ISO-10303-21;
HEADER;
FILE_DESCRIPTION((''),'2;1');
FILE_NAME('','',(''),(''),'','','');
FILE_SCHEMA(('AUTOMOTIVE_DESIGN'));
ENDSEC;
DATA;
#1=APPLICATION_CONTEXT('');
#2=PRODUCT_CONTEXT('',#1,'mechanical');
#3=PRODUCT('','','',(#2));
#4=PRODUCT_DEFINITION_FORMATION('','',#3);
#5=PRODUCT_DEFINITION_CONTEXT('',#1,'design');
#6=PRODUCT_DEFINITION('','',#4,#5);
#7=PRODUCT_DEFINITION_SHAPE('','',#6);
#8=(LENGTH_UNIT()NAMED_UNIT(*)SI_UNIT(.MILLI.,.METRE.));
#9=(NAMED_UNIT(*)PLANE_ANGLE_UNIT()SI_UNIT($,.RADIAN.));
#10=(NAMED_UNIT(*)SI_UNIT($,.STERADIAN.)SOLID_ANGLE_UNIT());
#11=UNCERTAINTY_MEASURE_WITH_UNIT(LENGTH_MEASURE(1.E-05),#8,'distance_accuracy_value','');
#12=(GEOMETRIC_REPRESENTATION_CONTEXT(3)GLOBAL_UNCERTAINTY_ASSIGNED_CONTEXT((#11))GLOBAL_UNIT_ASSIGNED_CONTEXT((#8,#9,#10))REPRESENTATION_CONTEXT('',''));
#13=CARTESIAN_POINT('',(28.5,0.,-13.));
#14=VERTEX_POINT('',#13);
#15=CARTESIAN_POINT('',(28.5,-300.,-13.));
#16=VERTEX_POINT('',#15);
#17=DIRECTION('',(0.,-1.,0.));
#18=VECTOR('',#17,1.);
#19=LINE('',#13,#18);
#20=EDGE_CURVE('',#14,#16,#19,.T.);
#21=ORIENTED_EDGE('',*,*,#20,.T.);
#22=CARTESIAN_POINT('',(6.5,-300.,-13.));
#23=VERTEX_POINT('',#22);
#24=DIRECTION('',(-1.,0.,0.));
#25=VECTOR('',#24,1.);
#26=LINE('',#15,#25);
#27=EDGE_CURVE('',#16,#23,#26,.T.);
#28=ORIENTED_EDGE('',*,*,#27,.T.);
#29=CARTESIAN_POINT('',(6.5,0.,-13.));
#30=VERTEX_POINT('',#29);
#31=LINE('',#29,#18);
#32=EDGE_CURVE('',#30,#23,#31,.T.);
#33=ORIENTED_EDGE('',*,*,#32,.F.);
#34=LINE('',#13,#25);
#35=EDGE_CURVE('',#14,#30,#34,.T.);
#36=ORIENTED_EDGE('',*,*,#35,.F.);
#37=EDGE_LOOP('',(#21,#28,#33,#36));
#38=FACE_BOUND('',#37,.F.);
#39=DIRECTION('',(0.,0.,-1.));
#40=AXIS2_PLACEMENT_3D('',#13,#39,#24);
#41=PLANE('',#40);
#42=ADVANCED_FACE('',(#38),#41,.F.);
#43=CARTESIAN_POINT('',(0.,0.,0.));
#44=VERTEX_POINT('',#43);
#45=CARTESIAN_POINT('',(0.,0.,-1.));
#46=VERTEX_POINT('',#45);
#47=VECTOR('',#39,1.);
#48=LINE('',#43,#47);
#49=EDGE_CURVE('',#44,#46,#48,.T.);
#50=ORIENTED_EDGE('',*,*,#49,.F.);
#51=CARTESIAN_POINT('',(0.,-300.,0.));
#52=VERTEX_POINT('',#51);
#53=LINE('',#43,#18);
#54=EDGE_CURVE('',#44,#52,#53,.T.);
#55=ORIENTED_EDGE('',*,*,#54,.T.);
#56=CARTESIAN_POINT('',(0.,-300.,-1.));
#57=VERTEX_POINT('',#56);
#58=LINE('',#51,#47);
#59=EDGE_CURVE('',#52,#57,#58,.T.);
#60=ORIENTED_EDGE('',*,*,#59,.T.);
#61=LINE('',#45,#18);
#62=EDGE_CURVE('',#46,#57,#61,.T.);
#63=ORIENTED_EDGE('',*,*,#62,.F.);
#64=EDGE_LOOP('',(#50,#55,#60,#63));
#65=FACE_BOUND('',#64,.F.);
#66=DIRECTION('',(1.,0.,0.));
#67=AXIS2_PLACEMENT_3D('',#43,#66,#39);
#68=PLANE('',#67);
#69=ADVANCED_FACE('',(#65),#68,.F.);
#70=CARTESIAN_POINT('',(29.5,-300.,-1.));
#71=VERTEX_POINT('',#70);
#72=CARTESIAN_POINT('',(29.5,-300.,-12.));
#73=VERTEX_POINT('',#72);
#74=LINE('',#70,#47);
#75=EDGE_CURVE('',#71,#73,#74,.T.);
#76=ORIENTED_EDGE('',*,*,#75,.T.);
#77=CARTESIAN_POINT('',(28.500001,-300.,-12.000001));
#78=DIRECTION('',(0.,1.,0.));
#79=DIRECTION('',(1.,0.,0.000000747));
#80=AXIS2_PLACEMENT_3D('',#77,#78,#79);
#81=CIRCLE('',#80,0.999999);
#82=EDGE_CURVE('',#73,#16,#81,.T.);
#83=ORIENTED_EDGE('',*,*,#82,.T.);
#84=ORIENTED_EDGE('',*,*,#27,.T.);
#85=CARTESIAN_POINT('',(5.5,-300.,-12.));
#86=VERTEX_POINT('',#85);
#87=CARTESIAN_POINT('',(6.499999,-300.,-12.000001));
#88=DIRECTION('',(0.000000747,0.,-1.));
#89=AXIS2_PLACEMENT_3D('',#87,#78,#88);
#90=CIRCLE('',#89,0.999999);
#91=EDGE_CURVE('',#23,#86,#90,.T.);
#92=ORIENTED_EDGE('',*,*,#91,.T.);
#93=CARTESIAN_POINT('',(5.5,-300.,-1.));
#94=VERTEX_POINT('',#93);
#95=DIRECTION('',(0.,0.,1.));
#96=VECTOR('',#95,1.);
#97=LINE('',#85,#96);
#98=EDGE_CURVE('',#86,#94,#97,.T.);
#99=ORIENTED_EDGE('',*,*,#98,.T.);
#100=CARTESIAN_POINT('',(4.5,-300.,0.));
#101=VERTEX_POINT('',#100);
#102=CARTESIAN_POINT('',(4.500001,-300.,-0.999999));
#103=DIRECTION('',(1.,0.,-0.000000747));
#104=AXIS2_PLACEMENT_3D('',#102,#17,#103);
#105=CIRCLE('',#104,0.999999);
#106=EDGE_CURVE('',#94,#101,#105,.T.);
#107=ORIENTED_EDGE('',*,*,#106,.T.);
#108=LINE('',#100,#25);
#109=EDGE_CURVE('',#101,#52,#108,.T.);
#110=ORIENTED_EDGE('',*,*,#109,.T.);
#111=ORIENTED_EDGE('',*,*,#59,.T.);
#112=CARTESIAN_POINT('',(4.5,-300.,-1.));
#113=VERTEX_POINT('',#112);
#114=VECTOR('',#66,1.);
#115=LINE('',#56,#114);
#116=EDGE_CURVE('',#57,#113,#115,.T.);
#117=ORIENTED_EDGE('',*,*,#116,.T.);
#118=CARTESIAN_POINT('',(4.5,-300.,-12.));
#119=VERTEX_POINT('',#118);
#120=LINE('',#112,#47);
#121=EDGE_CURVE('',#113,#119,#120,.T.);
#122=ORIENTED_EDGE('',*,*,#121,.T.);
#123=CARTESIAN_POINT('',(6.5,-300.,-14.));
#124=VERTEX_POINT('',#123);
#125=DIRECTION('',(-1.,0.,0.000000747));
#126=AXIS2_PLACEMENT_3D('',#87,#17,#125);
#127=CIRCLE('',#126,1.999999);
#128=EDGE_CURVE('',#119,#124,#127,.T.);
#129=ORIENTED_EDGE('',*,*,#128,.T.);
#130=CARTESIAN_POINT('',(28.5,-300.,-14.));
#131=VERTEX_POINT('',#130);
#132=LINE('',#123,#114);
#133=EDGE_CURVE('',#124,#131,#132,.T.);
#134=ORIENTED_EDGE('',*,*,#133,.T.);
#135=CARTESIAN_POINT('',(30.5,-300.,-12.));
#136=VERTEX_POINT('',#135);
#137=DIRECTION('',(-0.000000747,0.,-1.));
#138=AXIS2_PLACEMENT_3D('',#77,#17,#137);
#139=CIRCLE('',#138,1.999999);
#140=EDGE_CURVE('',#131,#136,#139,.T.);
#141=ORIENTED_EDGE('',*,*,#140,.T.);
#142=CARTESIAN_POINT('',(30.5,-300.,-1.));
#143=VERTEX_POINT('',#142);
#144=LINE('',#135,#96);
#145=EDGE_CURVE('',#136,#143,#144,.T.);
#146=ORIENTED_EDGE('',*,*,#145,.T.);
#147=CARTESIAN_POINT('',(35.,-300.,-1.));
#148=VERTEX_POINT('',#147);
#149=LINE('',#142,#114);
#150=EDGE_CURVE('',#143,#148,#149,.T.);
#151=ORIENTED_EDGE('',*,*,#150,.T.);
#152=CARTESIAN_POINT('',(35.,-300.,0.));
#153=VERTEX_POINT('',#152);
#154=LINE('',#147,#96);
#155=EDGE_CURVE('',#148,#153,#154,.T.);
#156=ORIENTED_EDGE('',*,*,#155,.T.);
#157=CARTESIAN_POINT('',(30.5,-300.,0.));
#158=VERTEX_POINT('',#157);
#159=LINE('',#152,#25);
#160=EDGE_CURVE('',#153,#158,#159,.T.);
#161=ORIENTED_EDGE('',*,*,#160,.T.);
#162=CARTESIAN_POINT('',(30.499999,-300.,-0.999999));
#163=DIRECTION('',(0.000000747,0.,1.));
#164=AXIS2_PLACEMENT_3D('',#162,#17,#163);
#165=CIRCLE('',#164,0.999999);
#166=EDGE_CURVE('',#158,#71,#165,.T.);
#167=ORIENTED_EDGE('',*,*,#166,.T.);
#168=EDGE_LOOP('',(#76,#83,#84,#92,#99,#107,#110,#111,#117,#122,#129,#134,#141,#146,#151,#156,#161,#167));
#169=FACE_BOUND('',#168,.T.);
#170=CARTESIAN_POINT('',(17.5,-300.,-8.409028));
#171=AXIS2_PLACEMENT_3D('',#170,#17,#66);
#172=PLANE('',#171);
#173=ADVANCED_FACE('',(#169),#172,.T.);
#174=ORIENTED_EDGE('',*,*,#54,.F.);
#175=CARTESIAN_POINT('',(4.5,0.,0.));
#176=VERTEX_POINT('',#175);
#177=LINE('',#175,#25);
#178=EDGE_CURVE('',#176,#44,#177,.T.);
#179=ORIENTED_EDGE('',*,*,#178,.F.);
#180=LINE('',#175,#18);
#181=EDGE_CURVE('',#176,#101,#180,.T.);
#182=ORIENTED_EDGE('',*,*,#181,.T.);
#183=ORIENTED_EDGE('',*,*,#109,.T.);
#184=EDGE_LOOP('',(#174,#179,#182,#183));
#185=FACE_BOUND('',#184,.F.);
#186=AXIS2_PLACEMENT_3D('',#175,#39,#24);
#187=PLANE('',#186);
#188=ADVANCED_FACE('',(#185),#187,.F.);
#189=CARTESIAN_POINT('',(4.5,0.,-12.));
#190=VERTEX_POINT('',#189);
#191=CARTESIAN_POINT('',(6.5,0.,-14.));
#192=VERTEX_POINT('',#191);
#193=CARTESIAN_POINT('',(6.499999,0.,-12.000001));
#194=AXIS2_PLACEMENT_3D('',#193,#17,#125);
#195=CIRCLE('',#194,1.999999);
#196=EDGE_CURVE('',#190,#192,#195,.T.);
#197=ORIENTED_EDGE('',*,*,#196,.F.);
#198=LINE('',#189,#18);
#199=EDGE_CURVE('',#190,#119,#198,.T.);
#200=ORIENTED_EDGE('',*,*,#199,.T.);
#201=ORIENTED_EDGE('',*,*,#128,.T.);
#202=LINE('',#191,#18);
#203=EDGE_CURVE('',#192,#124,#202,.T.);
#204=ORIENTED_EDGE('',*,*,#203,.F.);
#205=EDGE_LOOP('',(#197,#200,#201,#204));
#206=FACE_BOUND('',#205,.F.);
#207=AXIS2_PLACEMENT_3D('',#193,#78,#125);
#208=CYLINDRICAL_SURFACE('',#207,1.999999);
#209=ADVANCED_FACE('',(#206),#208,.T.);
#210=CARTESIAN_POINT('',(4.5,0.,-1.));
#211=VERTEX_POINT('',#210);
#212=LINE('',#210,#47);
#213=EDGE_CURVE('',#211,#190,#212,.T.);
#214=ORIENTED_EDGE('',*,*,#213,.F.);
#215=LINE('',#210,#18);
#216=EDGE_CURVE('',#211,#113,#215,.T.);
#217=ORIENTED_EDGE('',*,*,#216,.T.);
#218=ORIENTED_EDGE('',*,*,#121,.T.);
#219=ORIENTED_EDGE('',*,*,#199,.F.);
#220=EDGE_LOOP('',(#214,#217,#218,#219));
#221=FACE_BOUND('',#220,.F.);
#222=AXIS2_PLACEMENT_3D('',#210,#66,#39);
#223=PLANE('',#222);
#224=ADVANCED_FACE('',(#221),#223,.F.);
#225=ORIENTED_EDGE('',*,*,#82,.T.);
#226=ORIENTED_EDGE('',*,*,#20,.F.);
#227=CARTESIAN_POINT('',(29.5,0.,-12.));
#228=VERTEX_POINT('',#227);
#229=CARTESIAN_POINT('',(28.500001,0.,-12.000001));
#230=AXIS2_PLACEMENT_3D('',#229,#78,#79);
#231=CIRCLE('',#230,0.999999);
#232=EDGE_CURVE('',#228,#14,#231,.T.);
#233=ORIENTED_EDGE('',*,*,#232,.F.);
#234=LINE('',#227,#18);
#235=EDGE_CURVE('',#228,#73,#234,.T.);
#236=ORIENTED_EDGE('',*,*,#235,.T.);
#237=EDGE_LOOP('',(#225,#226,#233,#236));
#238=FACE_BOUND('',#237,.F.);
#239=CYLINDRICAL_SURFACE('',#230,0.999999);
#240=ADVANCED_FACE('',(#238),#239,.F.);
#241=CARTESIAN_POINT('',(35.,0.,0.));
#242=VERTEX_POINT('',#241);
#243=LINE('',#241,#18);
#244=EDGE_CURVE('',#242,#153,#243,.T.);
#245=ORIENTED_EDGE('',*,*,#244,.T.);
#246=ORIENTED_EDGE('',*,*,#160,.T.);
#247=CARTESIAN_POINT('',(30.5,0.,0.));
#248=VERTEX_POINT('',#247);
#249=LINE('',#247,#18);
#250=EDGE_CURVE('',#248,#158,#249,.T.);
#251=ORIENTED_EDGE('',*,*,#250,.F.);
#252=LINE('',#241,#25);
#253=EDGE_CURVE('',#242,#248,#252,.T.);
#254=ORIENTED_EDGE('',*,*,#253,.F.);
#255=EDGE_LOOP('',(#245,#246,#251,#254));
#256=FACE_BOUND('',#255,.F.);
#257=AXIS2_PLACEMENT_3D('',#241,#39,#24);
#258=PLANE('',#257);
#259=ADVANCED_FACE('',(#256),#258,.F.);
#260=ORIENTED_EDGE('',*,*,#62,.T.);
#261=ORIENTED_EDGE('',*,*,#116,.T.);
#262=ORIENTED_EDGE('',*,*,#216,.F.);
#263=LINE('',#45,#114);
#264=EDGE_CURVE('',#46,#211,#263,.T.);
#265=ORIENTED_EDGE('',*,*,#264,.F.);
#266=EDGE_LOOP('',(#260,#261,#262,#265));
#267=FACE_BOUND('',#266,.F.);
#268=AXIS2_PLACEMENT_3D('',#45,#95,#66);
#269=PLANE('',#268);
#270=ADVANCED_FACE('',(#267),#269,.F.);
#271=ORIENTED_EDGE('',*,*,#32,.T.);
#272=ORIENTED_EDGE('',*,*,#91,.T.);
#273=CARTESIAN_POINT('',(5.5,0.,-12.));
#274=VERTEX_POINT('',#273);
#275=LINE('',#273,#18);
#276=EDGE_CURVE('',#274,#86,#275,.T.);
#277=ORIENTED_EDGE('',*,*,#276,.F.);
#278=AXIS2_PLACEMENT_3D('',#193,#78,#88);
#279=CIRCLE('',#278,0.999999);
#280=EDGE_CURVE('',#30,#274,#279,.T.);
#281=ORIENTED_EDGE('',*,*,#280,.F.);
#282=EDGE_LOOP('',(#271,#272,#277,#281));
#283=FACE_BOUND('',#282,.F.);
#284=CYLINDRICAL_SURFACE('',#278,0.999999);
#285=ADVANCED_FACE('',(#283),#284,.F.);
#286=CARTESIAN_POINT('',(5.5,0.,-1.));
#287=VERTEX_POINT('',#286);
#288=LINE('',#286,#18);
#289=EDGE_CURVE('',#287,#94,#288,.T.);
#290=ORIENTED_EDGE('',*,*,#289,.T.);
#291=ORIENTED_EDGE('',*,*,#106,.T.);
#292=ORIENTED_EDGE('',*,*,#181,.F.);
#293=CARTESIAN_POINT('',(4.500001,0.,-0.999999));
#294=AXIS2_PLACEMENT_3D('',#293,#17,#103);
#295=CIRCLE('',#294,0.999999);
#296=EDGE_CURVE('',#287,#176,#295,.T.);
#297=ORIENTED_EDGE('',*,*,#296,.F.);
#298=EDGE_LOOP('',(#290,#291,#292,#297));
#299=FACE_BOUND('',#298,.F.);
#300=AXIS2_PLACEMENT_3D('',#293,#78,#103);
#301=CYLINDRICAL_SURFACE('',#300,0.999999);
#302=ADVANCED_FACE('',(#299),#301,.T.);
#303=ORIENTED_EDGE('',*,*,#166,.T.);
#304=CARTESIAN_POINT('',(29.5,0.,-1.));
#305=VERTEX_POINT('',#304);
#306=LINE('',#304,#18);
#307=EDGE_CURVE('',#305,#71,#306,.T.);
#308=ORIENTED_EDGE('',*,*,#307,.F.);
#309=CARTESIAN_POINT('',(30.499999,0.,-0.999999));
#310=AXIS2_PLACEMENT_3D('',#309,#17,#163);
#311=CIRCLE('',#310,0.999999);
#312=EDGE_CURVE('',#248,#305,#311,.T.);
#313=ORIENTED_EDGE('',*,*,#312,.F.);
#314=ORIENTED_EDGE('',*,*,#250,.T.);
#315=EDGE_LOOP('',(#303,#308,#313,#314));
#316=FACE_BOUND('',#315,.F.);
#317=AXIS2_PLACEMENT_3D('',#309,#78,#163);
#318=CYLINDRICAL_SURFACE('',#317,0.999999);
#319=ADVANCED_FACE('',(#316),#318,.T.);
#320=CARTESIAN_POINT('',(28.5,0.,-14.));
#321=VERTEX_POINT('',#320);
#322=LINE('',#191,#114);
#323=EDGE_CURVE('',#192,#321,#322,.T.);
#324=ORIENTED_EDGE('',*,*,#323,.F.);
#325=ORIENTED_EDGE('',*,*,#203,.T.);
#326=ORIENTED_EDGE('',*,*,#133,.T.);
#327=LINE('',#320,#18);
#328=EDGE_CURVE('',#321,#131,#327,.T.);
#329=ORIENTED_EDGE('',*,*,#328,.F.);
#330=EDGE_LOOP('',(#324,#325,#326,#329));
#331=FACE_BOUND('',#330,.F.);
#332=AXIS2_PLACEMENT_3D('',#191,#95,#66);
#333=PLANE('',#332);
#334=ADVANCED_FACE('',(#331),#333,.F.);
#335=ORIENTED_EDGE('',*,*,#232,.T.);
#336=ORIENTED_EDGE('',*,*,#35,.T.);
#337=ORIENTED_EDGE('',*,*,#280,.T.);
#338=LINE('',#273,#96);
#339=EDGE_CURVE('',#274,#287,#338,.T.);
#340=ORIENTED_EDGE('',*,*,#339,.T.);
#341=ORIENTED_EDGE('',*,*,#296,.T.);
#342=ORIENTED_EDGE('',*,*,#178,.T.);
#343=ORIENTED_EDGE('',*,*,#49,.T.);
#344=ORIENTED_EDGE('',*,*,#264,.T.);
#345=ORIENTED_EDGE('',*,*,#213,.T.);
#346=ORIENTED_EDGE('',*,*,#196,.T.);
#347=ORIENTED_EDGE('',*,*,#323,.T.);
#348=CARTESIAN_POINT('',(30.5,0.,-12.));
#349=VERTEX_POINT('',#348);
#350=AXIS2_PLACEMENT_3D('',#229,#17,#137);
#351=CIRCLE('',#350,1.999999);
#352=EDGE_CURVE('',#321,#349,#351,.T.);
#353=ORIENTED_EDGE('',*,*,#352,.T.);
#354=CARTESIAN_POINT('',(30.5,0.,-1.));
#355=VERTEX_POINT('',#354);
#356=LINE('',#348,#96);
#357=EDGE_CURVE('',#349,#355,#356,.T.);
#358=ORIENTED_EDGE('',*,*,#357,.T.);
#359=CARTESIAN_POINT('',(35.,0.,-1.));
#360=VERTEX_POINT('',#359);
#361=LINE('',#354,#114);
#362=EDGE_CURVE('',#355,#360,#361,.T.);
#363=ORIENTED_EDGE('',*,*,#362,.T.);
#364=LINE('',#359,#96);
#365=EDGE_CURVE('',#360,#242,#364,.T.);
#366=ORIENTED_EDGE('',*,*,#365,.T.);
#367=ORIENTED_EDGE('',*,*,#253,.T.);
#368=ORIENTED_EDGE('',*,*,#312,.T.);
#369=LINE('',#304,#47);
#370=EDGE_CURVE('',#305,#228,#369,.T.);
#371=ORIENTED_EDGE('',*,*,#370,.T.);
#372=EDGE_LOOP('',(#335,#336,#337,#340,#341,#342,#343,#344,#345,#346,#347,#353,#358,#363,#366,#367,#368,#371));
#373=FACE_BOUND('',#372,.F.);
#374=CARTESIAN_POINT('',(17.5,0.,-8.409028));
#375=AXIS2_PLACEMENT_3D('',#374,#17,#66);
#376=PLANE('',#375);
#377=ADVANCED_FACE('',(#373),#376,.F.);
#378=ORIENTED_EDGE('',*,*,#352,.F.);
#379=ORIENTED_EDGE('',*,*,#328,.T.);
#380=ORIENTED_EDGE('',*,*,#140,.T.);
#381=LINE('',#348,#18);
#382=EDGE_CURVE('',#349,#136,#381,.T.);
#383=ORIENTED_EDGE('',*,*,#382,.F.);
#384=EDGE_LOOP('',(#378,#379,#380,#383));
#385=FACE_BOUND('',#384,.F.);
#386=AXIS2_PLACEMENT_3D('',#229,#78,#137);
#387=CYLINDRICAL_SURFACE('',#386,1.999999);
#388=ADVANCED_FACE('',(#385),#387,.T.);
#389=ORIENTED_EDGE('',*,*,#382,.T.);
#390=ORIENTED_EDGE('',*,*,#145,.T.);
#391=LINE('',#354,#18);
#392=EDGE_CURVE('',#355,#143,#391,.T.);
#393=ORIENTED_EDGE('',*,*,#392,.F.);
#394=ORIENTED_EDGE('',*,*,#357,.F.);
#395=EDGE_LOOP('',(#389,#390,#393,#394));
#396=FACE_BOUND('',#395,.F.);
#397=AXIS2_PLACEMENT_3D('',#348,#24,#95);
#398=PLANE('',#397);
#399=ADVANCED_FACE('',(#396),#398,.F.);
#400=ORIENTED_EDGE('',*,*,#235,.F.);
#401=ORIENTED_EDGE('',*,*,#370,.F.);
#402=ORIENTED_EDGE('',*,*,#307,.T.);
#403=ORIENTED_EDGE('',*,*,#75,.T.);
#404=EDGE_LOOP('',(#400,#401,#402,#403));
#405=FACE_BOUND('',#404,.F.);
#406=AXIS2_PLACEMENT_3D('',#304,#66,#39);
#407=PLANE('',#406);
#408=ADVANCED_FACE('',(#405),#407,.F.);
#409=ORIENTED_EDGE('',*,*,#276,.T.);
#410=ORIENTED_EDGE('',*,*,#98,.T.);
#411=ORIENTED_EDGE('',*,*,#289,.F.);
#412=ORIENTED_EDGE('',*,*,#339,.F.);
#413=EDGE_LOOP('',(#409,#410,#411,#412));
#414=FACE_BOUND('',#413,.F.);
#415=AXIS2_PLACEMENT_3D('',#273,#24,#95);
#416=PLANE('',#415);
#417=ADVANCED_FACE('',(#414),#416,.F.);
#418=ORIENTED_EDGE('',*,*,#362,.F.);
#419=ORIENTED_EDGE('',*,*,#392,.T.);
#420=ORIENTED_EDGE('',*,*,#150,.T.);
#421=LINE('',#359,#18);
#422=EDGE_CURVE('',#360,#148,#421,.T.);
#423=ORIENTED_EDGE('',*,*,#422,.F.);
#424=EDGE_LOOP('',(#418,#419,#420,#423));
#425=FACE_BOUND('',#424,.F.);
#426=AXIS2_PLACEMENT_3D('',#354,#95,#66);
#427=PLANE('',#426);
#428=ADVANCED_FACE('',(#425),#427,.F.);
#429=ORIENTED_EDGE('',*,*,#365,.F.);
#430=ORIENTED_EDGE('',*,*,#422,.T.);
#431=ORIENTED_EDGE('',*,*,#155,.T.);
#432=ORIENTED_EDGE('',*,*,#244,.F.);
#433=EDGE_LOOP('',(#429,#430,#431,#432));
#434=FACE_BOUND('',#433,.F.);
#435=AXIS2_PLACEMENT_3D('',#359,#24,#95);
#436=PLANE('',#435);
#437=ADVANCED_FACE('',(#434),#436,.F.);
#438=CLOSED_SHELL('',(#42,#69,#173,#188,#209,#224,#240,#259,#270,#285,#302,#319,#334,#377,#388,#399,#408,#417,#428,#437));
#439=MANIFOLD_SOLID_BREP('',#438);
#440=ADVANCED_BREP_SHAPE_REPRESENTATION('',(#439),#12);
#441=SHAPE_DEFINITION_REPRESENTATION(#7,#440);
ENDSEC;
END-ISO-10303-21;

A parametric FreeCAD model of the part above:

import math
import FreeCAD as App
import Part
import Sketcher
from FreeCAD import Vector

doc = App.newDocument("Part")
params = doc.addObject("Spreadsheet::Sheet", "Params")
for row, (alias, value) in enumerate([
    ("sketch1_radius", "1.999999 mm"),
    ("sketch1_width", "22 mm"),
    ("sketch1_height", "11 mm"),
    ("sketch1_width2", "4.5 mm"),
    ("pad1_length", "300 mm"),
], start=1):
    params.set(f"A{row}", alias)
    params.set(f"B{row}", "=" + value)
    params.setAlias(f"B{row}", alias)

body = doc.addObject("PartDesign::Body", "Body")

sketch1 = doc.addObject("Sketcher::SketchObject", "Sketch")
body.addObject(sketch1)
sketch1.AttachmentSupport = (doc.XZ_Plane, [""])
sketch1.MapMode = "FlatFace"
sketch1.addGeometry([
    Part.LineSegment(Vector(4.5, 0, 0), Vector(0, 0, 0)),
    Part.LineSegment(Vector(0, 0, 0), Vector(0, -1, 0)),
    Part.LineSegment(Vector(0, -1, 0), Vector(4.5, -1, 0)),
    Part.LineSegment(Vector(4.5, -1, 0), Vector(4.5, -12, 0)),
    Part.ArcOfCircle(Part.Circle(Vector(6.5, -12, 0), Vector(0, 0, 1), 2), math.radians(180), math.radians(270)),
    Part.LineSegment(Vector(6.5, -14, 0), Vector(28.5, -14, 0)),
    Part.ArcOfCircle(Part.Circle(Vector(28.5, -12, 0), Vector(0, 0, 1), 2), math.radians(-90), math.radians(0)),
    Part.LineSegment(Vector(30.5, -12, 0), Vector(30.5, -1, 0)),
    Part.LineSegment(Vector(30.5, -1, 0), Vector(35, -1, 0)),
    Part.LineSegment(Vector(35, -1, 0), Vector(35, 0, 0)),
    Part.LineSegment(Vector(35, 0, 0), Vector(30.5, 0, 0)),
    Part.ArcOfCircle(Part.Circle(Vector(30.5, -1, 0), Vector(0, 0, 1), 1), math.radians(90), math.radians(180)),
    Part.LineSegment(Vector(29.5, -1, 0), Vector(29.5, -12, 0)),
    Part.ArcOfCircle(Part.Circle(Vector(28.5, -12, 0), Vector(0, 0, 1), 1), math.radians(-90), math.radians(0)),
    Part.LineSegment(Vector(28.5, -13, 0), Vector(6.5, -13, 0)),
    Part.ArcOfCircle(Part.Circle(Vector(6.5, -12, 0), Vector(0, 0, 1), 1), math.radians(180), math.radians(270)),
    Part.LineSegment(Vector(5.5, -12, 0), Vector(5.5, -1, 0)),
    Part.ArcOfCircle(Part.Circle(Vector(4.5, -1, 0), Vector(0, 0, 1), 1), math.radians(0), math.radians(90)),
], False)
sketch1.addConstraint([
    Sketcher.Constraint("Coincident", 0, 2, 1, 1),
    Sketcher.Constraint("Coincident", 1, 2, 2, 1),
    Sketcher.Constraint("Coincident", 2, 2, 3, 1),
    Sketcher.Constraint("Tangent", 3, 2, 4, 1),
    Sketcher.Constraint("Tangent", 4, 2, 5, 1),
    Sketcher.Constraint("Tangent", 5, 2, 6, 1),
    Sketcher.Constraint("Tangent", 6, 2, 7, 1),
    Sketcher.Constraint("Coincident", 7, 2, 8, 1),
    Sketcher.Constraint("Coincident", 8, 2, 9, 1),
    Sketcher.Constraint("Coincident", 9, 2, 10, 1),
    Sketcher.Constraint("Tangent", 10, 2, 11, 1),
    Sketcher.Constraint("Tangent", 11, 2, 12, 1),
    Sketcher.Constraint("Tangent", 12, 2, 13, 2),
    Sketcher.Constraint("Tangent", 13, 1, 14, 1),
    Sketcher.Constraint("Tangent", 14, 2, 15, 2),
    Sketcher.Constraint("Tangent", 15, 1, 16, 1),
    Sketcher.Constraint("Tangent", 16, 2, 17, 1),
    Sketcher.Constraint("Tangent", 17, 2, 0, 1),
    Sketcher.Constraint("Horizontal", 0),
    Sketcher.Constraint("Vertical", 1),
    Sketcher.Constraint("Horizontal", 2),
    Sketcher.Constraint("Vertical", 3),
    Sketcher.Constraint("Horizontal", 5),
    Sketcher.Constraint("Vertical", 7),
    Sketcher.Constraint("Horizontal", 8),
    Sketcher.Constraint("Vertical", 9),
    Sketcher.Constraint("Horizontal", 10),
    Sketcher.Constraint("Vertical", 12),
    Sketcher.Constraint("Horizontal", 14),
    Sketcher.Constraint("Vertical", 16),
    Sketcher.Constraint("Coincident", 0, 2, -1, 1),
    Sketcher.Constraint("Coincident", 13, 3, 6, 3),
    Sketcher.Constraint("Coincident", 15, 3, 4, 3),
    Sketcher.Constraint("Coincident", 2, 2, 17, 3),
    Sketcher.Constraint("Coincident", 7, 2, 11, 3),
    Sketcher.Constraint("Equal", 4, 6),
    Sketcher.Constraint("Equal", 11, 13),
    Sketcher.Constraint("PointOnObject", 9, 2, -1),
    Sketcher.Constraint("Equal", 2, 8),
    Sketcher.Constraint("Radius", 4, 1.999999),
    Sketcher.Constraint("DistanceX", 5, 1, 5, 2, 22.0),
    Sketcher.Constraint("DistanceY", 3, 2, 3, 1, 11.0),
    Sketcher.Constraint("DistanceX", 0, 2, 0, 1, 4.5),
])
sketch1.setExpression("Constraints[39]", "Params.sketch1_radius")
sketch1.setExpression("Constraints[40]", "Params.sketch1_width")
sketch1.setExpression("Constraints[41]", "Params.sketch1_height")
sketch1.setExpression("Constraints[42]", "Params.sketch1_width2")
pad1 = doc.addObject("PartDesign::Pad", "Pad")
body.addObject(pad1)
pad1.Profile = sketch1
pad1.setExpression("Length", "Params.pad1_length")

doc.recompute()
